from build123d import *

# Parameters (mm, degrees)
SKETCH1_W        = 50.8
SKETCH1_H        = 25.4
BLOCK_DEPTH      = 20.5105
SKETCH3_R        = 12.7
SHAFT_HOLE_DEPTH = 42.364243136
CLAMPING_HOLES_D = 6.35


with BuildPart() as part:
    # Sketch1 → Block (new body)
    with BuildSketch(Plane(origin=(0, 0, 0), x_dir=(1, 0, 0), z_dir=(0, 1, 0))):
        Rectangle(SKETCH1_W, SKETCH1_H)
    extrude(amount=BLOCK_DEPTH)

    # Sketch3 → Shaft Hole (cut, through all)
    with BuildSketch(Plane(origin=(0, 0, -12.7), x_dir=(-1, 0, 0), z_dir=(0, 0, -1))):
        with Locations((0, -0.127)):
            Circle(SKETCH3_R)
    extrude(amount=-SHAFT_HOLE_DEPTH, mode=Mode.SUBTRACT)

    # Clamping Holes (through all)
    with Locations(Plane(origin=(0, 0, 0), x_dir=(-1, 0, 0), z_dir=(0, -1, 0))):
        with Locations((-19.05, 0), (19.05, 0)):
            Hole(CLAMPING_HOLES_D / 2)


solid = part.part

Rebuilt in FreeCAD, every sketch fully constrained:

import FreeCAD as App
import Part
import Sketcher
Q = App.Units.Quantity

doc = App.newDocument("Part")
params = doc.addObject("Spreadsheet::Sheet", "Params")
for row, (alias, value) in enumerate([
    ("sketch1_width", "2 in"),
    ("sketch1_height", "1 in"),
    ("pad1_length", "0.8075 in"),
    ("sketch2_diameter", "1 in"),
    ("sketch3_diameter", "0.25 in"),
    ("hole_diameter", "0.25 in"),
], start=1):
    params.set(f"A{row}", alias)
    params.set(f"B{row}", "=" + value)
    params.setAlias(f"B{row}", alias)

body = doc.addObject("PartDesign::Body", "Body")

# Sketch on XZ plane
sketch1 = body.newObject("Sketcher::SketchObject", "Sketch")
sketch1.AttachmentSupport = (doc.getObject("XZ_Plane"), [""])
sketch1.MapMode = "FlatFace"
sketch1.addGeometry(Part.LineSegment(App.Vector(-25, -13, 0), App.Vector(-25, 13, 0)), False)
sketch1.addGeometry(Part.LineSegment(App.Vector(-25, 13, 0), App.Vector(25, 13, 0)), False)
sketch1.addGeometry(Part.LineSegment(App.Vector(25, 13, 0), App.Vector(25, -13, 0)), False)
sketch1.addGeometry(Part.LineSegment(App.Vector(25, -13, 0), App.Vector(-25, -13, 0)), False)
sketch1.addConstraint(Sketcher.Constraint("Coincident", 0, 2, 1, 1))
sketch1.addConstraint(Sketcher.Constraint("Coincident", 1, 2, 2, 1))
sketch1.addConstraint(Sketcher.Constraint("Coincident", 2, 2, 3, 1))
sketch1.addConstraint(Sketcher.Constraint("Coincident", 3, 2, 0, 1))
sketch1.addConstraint(Sketcher.Constraint("Vertical", 0))
sketch1.addConstraint(Sketcher.Constraint("Horizontal", 1))
sketch1.addConstraint(Sketcher.Constraint("Vertical", 2))
sketch1.addConstraint(Sketcher.Constraint("Horizontal", 3))
sketch1.addConstraint(Sketcher.Constraint("Symmetric", 0, 2, 2, 2, -1, 1))
sketch1.addConstraint(Sketcher.Constraint("DistanceX", 1, 1, 1, 2, Q("2 in")))
sketch1.addConstraint(Sketcher.Constraint("DistanceY", 0, 1, 0, 2, Q("1 in")))
sketch1.setExpression("Constraints[9]", "Params.sketch1_width")
sketch1.setExpression("Constraints[10]", "Params.sketch1_height")
pad1 = body.newObject("PartDesign::Pad", "Pad")
pad1.Profile = sketch1
pad1.setExpression("Length", "Params.pad1_length")
pad1.Reversed = True

# Sketch on XY plane
sketch2 = body.newObject("Sketcher::SketchObject", "Sketch001")
sketch2.AttachmentSupport = (doc.getObject("XY_Plane"), [""])
sketch2.MapMode = "FlatFace"
sketch2.AttachmentOffset = App.Placement(App.Vector(0, 0, -0.5 * 25.4), App.Rotation())
sketch2.addGeometry(Part.Circle(App.Vector(0, 0, 0), App.Vector(0, 0, 1), 13), False)
sketch2.addConstraint(Sketcher.Constraint("PointOnObject", 0, 3, -2))
sketch2.addConstraint(Sketcher.Constraint("Diameter", 0, Q("1 in")))
sketch2.addConstraint(Sketcher.Constraint("DistanceY", 0, 3, -1, 1, Q("0.005 in")))
sketch2.setExpression("Constraints[1]", "Params.sketch2_diameter")
pocket1 = body.newObject("PartDesign::Pocket", "Pocket")
pocket1.Profile = sketch2
pocket1.Type = "ThroughAll"
pocket1.Reversed = True

# Sketch on XZ plane
sketch3 = body.newObject("Sketcher::SketchObject", "Sketch002")
sketch3.AttachmentSupport = (doc.getObject("XZ_Plane"), [""])
sketch3.MapMode = "FlatFace"
sketch3.addGeometry(Part.Circle(App.Vector(19.1, 0, 0), App.Vector(0, 0, 1), 3.2), False)
sketch3.addGeometry(Part.Circle(App.Vector(-19.1, 0, 0), App.Vector(0, 0, 1), 3.2), False)
sketch3.addConstraint(Sketcher.Constraint("Equal", 0, 1))
sketch3.addConstraint(Sketcher.Constraint("Symmetric", 0, 3, 1, 3, -1, 1))
sketch3.addConstraint(Sketcher.Constraint("PointOnObject", 0, 3, -1))
sketch3.addConstraint(Sketcher.Constraint("Diameter", 0, Q("0.25 in")))
sketch3.addConstraint(Sketcher.Constraint("DistanceX", 1, 3, 0, 3, Q("1.5 in")))
sketch3.setExpression("Constraints[3]", "Params.sketch3_diameter")
doc.recompute()
hole = body.newObject("PartDesign::Hole", "Hole")
hole.Profile = sketch3
hole.ThreadType = "None"
hole.setExpression("Diameter", "Params.hole_diameter")
hole.DepthType = "ThroughAll"

doc.recompute()
